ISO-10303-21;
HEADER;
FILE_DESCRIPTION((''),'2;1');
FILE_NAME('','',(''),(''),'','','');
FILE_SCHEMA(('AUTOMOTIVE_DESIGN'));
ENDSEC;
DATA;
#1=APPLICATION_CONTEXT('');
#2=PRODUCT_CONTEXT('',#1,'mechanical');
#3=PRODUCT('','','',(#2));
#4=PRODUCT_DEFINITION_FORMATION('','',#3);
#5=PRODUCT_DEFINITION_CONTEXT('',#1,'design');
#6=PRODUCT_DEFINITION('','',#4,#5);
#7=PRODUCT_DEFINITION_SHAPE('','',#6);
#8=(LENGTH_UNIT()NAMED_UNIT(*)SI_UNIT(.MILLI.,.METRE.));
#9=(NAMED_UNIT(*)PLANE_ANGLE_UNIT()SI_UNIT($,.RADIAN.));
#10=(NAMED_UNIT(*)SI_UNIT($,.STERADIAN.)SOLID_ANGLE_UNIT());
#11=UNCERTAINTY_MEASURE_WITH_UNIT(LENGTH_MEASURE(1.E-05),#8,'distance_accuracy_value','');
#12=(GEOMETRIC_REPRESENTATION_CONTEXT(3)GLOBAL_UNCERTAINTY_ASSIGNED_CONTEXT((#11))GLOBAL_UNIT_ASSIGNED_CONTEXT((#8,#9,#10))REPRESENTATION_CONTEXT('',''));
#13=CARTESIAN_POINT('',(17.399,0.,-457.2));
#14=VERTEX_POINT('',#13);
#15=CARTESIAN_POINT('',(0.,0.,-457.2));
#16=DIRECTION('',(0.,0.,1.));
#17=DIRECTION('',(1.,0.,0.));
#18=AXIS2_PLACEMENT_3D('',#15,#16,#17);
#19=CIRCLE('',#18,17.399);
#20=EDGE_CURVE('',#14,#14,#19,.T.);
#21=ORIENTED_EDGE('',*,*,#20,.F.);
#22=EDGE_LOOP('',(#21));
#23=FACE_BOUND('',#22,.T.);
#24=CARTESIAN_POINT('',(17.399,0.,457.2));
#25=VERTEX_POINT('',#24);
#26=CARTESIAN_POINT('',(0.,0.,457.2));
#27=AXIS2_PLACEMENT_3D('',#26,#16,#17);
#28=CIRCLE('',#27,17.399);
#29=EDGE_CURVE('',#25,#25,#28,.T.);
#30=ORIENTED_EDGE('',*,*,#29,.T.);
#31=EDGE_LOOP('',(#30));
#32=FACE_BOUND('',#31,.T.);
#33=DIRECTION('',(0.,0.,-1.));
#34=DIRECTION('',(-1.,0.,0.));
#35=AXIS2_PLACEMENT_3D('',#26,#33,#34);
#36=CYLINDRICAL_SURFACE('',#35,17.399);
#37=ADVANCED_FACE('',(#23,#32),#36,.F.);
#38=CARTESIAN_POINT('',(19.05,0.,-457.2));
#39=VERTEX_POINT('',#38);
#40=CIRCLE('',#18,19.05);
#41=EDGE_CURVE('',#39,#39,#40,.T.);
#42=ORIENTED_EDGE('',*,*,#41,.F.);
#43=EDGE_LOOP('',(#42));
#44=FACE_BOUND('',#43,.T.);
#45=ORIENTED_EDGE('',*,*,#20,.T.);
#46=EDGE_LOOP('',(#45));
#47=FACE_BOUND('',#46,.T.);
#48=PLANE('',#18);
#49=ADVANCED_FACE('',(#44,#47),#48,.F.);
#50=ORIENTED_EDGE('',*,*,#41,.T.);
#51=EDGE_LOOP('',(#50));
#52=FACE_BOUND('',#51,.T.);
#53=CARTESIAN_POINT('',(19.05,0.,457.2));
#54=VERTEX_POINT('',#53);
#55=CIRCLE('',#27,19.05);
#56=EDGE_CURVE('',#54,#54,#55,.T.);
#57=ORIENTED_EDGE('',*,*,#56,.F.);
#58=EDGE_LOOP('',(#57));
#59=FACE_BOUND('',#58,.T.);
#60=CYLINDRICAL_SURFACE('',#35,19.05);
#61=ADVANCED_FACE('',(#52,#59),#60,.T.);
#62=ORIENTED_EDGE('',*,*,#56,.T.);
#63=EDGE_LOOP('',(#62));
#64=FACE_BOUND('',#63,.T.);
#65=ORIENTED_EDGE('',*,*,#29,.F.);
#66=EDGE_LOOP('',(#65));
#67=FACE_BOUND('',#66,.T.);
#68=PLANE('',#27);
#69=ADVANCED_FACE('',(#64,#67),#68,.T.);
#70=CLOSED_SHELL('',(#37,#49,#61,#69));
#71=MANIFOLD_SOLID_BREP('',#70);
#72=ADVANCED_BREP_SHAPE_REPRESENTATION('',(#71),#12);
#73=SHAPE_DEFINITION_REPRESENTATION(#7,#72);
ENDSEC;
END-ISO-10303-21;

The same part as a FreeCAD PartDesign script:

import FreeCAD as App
import Part
import Sketcher
from FreeCAD import Vector
Q = App.Units.Quantity

doc = App.newDocument("Part")
body = doc.addObject("PartDesign::Body", "Body")

# Sketch on XY plane
sketch1 = body.newObject("Sketcher::SketchObject", "Sketch")
sketch1.AttachmentSupport = (doc.getObject("XY_Plane"), [""])
sketch1.MapMode = "FlatFace"
sketch1.addGeometry([
    Part.Circle(Vector(0, 0, 0), Vector(0, 0, 1), 19),
    Part.Circle(Vector(0, 0, 0), Vector(0, 0, 1), 17),
], False)
sketch1.addConstraint([
    Sketcher.Constraint("Coincident", 0, 3, -1, 1),
    Sketcher.Constraint("Coincident", 1, 3, -1, 1),
    Sketcher.Constraint("Diameter", 0, Q("1.5 in")),
    Sketcher.Constraint("Diameter", 1, Q("1.37 in")),
])
pad1 = body.newObject("PartDesign::Pad", "Pad")
pad1.Profile = sketch1
pad1.Length = Q("36 in")
pad1.Midplane = True

doc.recompute()
